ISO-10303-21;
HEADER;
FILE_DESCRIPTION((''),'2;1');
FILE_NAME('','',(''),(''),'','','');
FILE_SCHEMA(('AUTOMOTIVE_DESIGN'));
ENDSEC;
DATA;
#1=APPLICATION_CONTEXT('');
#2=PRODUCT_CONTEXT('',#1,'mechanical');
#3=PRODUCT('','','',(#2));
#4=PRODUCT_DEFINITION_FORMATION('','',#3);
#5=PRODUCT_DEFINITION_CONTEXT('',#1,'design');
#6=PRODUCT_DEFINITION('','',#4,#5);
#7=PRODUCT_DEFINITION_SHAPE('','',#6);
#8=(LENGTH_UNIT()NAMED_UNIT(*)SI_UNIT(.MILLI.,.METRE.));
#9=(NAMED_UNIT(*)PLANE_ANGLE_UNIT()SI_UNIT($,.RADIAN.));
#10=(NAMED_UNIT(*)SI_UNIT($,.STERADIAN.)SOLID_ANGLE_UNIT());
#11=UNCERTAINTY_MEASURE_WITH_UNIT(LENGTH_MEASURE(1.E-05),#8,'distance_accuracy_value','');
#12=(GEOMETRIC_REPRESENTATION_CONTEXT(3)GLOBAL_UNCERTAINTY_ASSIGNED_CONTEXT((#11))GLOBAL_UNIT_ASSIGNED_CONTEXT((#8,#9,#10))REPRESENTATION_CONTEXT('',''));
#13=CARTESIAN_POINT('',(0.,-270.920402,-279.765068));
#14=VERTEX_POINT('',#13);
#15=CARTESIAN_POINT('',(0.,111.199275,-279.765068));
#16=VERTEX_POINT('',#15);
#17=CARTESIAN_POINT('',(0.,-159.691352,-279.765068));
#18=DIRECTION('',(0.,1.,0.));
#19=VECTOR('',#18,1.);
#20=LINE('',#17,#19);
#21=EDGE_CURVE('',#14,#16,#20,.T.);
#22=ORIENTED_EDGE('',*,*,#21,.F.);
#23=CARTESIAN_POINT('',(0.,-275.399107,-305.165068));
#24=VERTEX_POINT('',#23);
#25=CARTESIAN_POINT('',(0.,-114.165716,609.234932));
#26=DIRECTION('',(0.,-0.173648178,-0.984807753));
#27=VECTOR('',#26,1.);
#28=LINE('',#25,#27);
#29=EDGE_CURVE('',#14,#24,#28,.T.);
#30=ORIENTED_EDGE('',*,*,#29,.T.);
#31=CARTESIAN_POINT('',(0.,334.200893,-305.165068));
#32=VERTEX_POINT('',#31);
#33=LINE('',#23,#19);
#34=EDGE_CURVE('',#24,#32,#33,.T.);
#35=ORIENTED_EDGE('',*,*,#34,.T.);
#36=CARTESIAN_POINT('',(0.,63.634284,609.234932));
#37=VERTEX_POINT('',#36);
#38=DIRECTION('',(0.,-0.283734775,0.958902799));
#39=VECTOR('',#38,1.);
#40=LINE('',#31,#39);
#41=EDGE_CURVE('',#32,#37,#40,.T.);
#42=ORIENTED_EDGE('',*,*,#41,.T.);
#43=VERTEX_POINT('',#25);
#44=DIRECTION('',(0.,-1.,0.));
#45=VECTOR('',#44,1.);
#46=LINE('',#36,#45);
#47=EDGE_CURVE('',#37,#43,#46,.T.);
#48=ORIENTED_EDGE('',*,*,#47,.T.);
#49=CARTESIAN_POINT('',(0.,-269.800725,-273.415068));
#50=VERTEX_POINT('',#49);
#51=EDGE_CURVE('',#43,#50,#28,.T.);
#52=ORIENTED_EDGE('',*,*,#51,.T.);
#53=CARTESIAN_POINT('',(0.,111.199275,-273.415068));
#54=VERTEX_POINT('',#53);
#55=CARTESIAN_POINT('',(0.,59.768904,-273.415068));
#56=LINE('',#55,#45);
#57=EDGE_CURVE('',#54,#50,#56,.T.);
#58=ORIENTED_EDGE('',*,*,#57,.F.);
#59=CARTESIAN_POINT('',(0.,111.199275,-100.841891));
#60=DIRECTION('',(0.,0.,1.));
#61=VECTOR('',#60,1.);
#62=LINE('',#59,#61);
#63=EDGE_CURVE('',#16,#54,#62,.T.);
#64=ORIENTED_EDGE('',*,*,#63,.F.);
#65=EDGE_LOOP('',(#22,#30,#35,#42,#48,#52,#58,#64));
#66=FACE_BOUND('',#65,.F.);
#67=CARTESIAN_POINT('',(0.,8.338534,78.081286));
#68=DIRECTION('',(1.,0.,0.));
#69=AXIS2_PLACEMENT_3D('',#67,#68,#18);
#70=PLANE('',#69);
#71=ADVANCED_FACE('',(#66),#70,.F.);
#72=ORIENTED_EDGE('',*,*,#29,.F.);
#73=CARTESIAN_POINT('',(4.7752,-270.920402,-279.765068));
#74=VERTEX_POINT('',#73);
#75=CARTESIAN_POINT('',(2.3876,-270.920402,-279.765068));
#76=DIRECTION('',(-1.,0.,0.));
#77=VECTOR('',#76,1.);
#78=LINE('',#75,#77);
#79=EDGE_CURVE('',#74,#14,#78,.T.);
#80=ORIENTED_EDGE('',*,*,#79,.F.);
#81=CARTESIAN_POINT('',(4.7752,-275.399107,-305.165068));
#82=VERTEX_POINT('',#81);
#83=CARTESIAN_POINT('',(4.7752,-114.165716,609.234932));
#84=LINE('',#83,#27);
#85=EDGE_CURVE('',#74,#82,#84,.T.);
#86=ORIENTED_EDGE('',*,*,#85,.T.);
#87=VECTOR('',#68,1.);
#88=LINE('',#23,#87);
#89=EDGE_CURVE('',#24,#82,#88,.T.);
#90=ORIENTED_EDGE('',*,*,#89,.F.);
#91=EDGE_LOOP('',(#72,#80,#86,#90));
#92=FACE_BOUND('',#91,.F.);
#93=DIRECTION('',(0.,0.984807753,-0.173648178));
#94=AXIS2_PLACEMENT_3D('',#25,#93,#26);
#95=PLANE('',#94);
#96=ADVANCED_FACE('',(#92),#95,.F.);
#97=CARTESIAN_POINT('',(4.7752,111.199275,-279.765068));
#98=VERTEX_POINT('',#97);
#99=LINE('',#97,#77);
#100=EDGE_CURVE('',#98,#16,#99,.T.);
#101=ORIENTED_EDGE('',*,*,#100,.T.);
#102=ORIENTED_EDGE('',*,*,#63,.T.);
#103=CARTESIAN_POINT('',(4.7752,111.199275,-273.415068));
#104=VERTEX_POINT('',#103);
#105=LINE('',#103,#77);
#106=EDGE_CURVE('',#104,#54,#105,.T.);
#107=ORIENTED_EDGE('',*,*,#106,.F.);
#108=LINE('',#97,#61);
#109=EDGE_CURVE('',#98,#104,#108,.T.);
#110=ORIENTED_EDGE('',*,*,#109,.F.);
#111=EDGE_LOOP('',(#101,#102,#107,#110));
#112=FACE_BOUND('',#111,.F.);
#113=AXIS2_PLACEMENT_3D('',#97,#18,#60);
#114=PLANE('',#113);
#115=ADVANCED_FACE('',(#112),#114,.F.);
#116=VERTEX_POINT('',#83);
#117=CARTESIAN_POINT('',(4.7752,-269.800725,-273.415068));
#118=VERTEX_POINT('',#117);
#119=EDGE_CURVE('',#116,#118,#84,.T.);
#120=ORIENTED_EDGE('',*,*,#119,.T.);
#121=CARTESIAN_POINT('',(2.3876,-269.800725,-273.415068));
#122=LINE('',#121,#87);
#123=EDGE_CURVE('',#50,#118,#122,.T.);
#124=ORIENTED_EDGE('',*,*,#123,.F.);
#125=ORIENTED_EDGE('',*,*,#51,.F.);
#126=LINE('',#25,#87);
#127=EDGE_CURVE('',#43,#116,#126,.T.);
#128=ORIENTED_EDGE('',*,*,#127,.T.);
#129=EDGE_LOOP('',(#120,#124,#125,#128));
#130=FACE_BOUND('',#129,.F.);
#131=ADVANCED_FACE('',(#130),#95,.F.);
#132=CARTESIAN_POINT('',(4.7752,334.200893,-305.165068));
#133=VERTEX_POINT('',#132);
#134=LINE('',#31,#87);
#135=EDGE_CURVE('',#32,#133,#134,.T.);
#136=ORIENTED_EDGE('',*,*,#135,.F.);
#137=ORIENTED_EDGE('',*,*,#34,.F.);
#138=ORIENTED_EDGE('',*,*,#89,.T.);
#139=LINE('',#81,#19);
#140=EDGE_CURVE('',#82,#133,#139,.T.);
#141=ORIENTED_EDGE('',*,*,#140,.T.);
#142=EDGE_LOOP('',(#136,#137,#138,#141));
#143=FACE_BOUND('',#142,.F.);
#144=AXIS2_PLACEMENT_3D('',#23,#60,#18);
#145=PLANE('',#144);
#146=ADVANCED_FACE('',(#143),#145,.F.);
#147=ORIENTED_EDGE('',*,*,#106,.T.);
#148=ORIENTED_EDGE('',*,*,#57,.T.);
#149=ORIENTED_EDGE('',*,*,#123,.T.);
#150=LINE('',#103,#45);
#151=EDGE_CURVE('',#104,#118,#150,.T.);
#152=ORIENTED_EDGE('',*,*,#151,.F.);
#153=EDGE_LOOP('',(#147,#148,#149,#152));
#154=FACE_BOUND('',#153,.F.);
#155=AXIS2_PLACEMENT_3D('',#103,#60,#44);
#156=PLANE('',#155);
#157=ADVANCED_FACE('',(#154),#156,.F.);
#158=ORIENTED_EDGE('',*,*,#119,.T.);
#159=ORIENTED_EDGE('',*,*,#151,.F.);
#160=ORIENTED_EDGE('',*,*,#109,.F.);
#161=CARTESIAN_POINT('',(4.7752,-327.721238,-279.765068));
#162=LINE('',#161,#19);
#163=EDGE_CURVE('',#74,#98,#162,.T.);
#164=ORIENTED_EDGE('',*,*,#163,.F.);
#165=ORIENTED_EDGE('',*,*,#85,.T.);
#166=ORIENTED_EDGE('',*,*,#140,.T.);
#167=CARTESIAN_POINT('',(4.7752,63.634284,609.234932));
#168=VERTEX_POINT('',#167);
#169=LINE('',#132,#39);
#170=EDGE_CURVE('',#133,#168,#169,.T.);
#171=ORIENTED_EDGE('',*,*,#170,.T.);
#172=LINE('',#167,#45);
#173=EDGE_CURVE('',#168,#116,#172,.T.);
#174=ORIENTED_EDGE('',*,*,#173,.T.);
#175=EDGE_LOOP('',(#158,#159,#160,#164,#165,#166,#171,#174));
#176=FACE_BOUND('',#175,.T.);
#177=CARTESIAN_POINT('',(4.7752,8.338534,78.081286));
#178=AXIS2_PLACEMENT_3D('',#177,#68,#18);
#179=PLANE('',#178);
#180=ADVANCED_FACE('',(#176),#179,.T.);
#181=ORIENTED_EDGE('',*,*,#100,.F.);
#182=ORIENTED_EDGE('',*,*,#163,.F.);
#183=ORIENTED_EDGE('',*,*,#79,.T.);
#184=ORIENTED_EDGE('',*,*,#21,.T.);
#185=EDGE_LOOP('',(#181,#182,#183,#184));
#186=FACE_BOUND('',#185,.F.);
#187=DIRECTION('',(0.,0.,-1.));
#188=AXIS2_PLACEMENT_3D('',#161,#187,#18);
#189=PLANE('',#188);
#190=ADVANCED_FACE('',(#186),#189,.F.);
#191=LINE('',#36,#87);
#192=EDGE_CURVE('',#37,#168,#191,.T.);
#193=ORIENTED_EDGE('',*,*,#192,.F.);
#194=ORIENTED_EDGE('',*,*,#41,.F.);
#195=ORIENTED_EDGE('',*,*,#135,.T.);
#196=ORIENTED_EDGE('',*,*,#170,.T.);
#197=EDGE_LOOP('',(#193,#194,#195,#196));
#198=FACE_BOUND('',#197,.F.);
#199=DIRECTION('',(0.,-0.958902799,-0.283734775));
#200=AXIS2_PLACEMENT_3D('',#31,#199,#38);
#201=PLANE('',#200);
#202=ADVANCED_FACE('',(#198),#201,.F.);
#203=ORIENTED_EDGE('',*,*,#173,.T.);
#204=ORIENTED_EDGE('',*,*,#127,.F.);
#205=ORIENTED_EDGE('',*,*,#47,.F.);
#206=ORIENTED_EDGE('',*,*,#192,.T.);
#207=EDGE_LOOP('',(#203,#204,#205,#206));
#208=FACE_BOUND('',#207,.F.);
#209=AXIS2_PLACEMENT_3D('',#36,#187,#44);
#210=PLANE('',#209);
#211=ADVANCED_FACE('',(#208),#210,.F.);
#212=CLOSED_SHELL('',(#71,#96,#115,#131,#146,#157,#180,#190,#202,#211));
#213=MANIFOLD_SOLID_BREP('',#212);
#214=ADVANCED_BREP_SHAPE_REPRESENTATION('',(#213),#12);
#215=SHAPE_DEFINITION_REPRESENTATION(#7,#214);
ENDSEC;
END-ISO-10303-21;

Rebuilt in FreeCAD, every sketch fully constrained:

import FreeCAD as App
import Part
import Sketcher
from FreeCAD import Vector
Q = App.Units.Quantity


def add_polygon(sketch, points):
    """Adds a closed chain of lines whose ends are joined by coincident constraints."""
    first, n = sketch.GeometryCount, len(points)
    for a, b in zip(points, points[1:] + points[:1]):
        sketch.addGeometry(Part.LineSegment(App.Vector(*a, 0), App.Vector(*b, 0)), False)
    for i in range(n):
        sketch.addConstraint(Sketcher.Constraint("Coincident", first + i, 2, first + (i + 1) % n, 1))

doc = App.newDocument("Part")
params = doc.addObject("Spreadsheet::Sheet", "Params")
for row, (alias, value) in enumerate([
    ("sketch1_width", "7 in"),
    ("sketch1_width2", "24 in"),
    ("pad1_length", "0.188 in"),
    ("sketch2_height", "0.25 in"),
    ("pocket1_length", "1 in"),
], start=1):
    params.set(f"A{row}", alias)
    params.set(f"B{row}", "=" + value)
    params.setAlias(f"B{row}", alias)

body = doc.addObject("PartDesign::Body", "Body")

sketch1 = body.newObject("Sketcher::SketchObject", "Sketch")
sketch1.AttachmentSupport = (doc.getObject("YZ_Plane"), [""])
sketch1.MapMode = "FlatFace"
add_polygon(sketch1, [(64, 609), (-114, 609), (-275, -305), (334, -305)])
sketch1.addConstraint(Sketcher.Constraint("Horizontal", 0))
sketch1.addConstraint(Sketcher.Constraint("Horizontal", 2))
sketch1.addConstraint(Sketcher.Constraint("DistanceX", 0, 2, 0, 1, Q("7 in")))
sketch1.addConstraint(Sketcher.Constraint("DistanceX", 2, 1, 2, 2, Q("24 in")))
sketch1.addConstraint(Sketcher.Constraint("Angle", 1, Q("-100 deg")))
sketch1.addConstraint(Sketcher.Constraint("DistanceY", 1, 2, 0, 2, Q("36 in")))
sketch1.addConstraint(Sketcher.Constraint("DistanceY", -1, 1, 0, 2, 609.234932))
sketch1.addConstraint(Sketcher.Constraint("DistanceX", 0, 2, -1, 1, 114.165716))
sketch1.setExpression("Constraints[6]", "Params.sketch1_width")
sketch1.setExpression("Constraints[7]", "Params.sketch1_width2")
pad1 = body.newObject("PartDesign::Pad", "Pad")
pad1.Profile = sketch1
pad1.setExpression("Length", "Params.pad1_length")

sketch2 = body.newObject("Sketcher::SketchObject", "Sketch001")
sketch2.AttachmentSupport = (doc.getObject("YZ_Plane"), [""])
sketch2.MapMode = "FlatFace"
sketch2.AttachmentOffset = App.Placement(Vector(0, 0, 0.188 * 25.4), App.Rotation())
add_polygon(sketch2, [(111, -273), (-328, -273), (-328, -280), (111, -280)])
sketch2.addConstraint(Sketcher.Constraint("Horizontal", 0))
sketch2.addConstraint(Sketcher.Constraint("Vertical", 1))
sketch2.addConstraint(Sketcher.Constraint("Horizontal", 2))
sketch2.addConstraint(Sketcher.Constraint("Vertical", 3))
sketch2.addConstraint(Sketcher.Constraint("DistanceY", 1, 2, 1, 1, Q("0.25 in")))
sketch2.addConstraint(Sketcher.Constraint("DistanceX", 0, 2, 0, 1, 438.920513))
sketch2.addConstraint(Sketcher.Constraint("DistanceX", 0, 2, -1, 1, 327.721238))
sketch2.addConstraint(Sketcher.Constraint("DistanceY", 0, 2, -1, 1, 273.415068))
sketch2.setExpression("Constraints[8]", "Params.sketch2_height")
pocket1 = body.newObject("PartDesign::Pocket", "Pocket")
pocket1.Profile = sketch2
pocket1.setExpression("Length", "Params.pocket1_length")

doc.recompute()
